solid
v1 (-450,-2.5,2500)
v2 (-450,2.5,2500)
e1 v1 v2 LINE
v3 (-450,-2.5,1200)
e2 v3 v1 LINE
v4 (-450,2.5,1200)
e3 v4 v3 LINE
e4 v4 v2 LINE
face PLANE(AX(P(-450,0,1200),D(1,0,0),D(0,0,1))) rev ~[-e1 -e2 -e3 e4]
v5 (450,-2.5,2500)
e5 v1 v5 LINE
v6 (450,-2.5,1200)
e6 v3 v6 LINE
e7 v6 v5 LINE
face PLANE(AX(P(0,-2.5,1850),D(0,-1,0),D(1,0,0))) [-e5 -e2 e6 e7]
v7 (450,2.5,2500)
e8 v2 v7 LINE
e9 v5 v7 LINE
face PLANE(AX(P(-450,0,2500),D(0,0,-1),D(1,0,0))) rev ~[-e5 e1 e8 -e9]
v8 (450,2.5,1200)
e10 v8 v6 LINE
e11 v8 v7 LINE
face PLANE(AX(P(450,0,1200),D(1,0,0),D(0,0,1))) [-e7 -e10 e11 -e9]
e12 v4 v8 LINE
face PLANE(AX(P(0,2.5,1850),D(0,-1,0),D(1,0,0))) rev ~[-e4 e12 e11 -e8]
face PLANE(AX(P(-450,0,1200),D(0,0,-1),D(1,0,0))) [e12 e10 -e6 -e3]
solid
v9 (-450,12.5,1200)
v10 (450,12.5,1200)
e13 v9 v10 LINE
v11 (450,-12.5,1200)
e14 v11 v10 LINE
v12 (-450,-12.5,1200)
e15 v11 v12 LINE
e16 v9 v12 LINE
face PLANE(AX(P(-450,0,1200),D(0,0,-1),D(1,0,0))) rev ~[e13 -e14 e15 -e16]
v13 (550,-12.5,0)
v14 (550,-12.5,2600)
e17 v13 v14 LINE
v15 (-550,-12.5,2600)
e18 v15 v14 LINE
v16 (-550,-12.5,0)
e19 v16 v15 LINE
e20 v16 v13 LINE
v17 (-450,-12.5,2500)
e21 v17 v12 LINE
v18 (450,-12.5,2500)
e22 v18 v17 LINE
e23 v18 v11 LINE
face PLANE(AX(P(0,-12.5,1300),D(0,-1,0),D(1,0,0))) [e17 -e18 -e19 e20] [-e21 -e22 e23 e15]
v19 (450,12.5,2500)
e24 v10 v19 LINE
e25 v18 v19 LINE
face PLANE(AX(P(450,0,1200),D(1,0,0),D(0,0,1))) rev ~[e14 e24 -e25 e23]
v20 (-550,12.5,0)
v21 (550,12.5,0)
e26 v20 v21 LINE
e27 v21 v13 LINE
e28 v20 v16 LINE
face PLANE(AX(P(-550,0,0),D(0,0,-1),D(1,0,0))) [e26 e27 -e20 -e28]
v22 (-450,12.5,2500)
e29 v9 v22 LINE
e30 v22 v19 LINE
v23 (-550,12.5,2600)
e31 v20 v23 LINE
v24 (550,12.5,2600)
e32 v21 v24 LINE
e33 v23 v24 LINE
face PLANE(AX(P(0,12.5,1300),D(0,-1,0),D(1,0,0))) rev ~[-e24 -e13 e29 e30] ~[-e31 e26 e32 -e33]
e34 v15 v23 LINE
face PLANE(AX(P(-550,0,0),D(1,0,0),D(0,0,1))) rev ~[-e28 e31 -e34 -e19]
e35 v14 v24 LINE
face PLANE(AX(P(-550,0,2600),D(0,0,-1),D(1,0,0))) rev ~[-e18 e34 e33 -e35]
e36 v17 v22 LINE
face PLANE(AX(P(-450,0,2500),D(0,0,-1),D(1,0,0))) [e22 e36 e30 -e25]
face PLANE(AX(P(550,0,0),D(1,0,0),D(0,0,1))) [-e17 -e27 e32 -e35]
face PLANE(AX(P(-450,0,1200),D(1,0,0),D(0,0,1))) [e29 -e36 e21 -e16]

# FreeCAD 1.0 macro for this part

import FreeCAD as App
import Part
import Sketcher

V = App.Vector
Q = App.Units.Quantity

doc = App.newDocument("Part")
body = doc.addObject("PartDesign::Body", "Body")

# Sketch on XZ plane
sketch1 = doc.addObject("Sketcher::SketchObject", "Sketch")
body.addObject(sketch1)
sketch1.AttachmentSupport = (doc.XZ_Plane, [""])
sketch1.MapMode = "FlatFace"
sketch1.addGeometry(Part.LineSegment(V(-550, 2600, 0), V(-550, 0, 0)), False)
sketch1.addGeometry(Part.LineSegment(V(-550, 0, 0), V(550, 0, 0)), False)
sketch1.addGeometry(Part.LineSegment(V(550, 0, 0), V(550, 2600, 0)), False)
sketch1.addGeometry(Part.LineSegment(V(550, 2600, 0), V(-550, 2600, 0)), False)
sketch1.addConstraint(Sketcher.Constraint("Coincident", 0, 2, 1, 1))
sketch1.addConstraint(Sketcher.Constraint("Coincident", 1, 2, 2, 1))
sketch1.addConstraint(Sketcher.Constraint("Coincident", 2, 2, 3, 1))
sketch1.addConstraint(Sketcher.Constraint("Coincident", 3, 2, 0, 1))
sketch1.addConstraint(Sketcher.Constraint("Vertical", 0))
sketch1.addConstraint(Sketcher.Constraint("Horizontal", 1))
sketch1.addConstraint(Sketcher.Constraint("Vertical", 2))
sketch1.addConstraint(Sketcher.Constraint("Horizontal", 3))
sketch1.addConstraint(Sketcher.Constraint("Symmetric", 0, 2, 1, 2, -1, 1))
sketch1.addConstraint(Sketcher.Constraint("DistanceX", 1, 1, 1, 2, Q("1100 mm")))
sketch1.addConstraint(Sketcher.Constraint("DistanceY", 0, 2, 0, 1, Q("2600 mm")))
pad1 = doc.addObject("PartDesign::Pad", "Pad")
body.addObject(pad1)
pad1.Profile = sketch1
pad1.Length = 25
pad1.Midplane = True

# Sketch on XZ plane
sketch2 = doc.addObject("Sketcher::SketchObject", "Sketch001")
body.addObject(sketch2)
sketch2.AttachmentSupport = (doc.XZ_Plane, [""])
sketch2.MapMode = "FlatFace"
sketch2.addGeometry(Part.LineSegment(V(-450, 2500, 0), V(-450, 1200, 0)), False)
sketch2.addGeometry(Part.LineSegment(V(-450, 1200, 0), V(450, 1200, 0)), False)
sketch2.addGeometry(Part.LineSegment(V(450, 1200, 0), V(450, 2500, 0)), False)
sketch2.addGeometry(Part.LineSegment(V(450, 2500, 0), V(-450, 2500, 0)), False)
sketch2.addConstraint(Sketcher.Constraint("Coincident", 0, 2, 1, 1))
sketch2.addConstraint(Sketcher.Constraint("Coincident", 1, 2, 2, 1))
sketch2.addConstraint(Sketcher.Constraint("Coincident", 2, 2, 3, 1))
sketch2.addConstraint(Sketcher.Constraint("Coincident", 3, 2, 0, 1))
sketch2.addConstraint(Sketcher.Constraint("Vertical", 0))
sketch2.addConstraint(Sketcher.Constraint("Horizontal", 1))
sketch2.addConstraint(Sketcher.Constraint("Vertical", 2))
sketch2.addConstraint(Sketcher.Constraint("Horizontal", 3))
sketch2.addConstraint(Sketcher.Constraint("DistanceX", 1, 1, 1, 2, Q("900 mm")))
sketch2.addConstraint(Sketcher.Constraint("DistanceY", 0, 2, 0, 1, Q("1300 mm")))
sketch2.addConstraint(Sketcher.Constraint("DistanceX", 0, 2, -1, 1, Q("450 mm")))
sketch2.addConstraint(Sketcher.Constraint("DistanceY", -1, 1, 0, 2, Q("1200 mm")))
pocket1 = doc.addObject("PartDesign::Pocket", "Pocket")
body.addObject(pocket1)
pocket1.Profile = sketch2
pocket1.Type = "ThroughAll"
pocket1.Midplane = True
body2 = doc.addObject("PartDesign::Body", "Body001")

# Sketch on XZ plane
sketch3 = doc.addObject("Sketcher::SketchObject", "Sketch002")
body2.addObject(sketch3)
sketch3.AttachmentSupport = (doc.getObject("XZ_Plane001"), [""])
sketch3.MapMode = "FlatFace"
sketch3.addGeometry(Part.LineSegment(V(-450, 2500, 0), V(-450, 1200, 0)), False)
sketch3.addGeometry(Part.LineSegment(V(-450, 1200, 0), V(450, 1200, 0)), False)
sketch3.addGeometry(Part.LineSegment(V(450, 1200, 0), V(450, 2500, 0)), False)
sketch3.addGeometry(Part.LineSegment(V(450, 2500, 0), V(-450, 2500, 0)), False)
sketch3.addConstraint(Sketcher.Constraint("Coincident", 0, 2, 1, 1))
sketch3.addConstraint(Sketcher.Constraint("Coincident", 1, 2, 2, 1))
sketch3.addConstraint(Sketcher.Constraint("Coincident", 2, 2, 3, 1))
sketch3.addConstraint(Sketcher.Constraint("Coincident", 3, 2, 0, 1))
sketch3.addConstraint(Sketcher.Constraint("Vertical", 0))
sketch3.addConstraint(Sketcher.Constraint("Horizontal", 1))
sketch3.addConstraint(Sketcher.Constraint("Vertical", 2))
sketch3.addConstraint(Sketcher.Constraint("Horizontal", 3))
sketch3.addConstraint(Sketcher.Constraint("DistanceX", 1, 1, 1, 2, Q("900 mm")))
sketch3.addConstraint(Sketcher.Constraint("DistanceY", 0, 2, 0, 1, Q("1300 mm")))
sketch3.addConstraint(Sketcher.Constraint("DistanceX", 0, 2, -1, 1, Q("450 mm")))
sketch3.addConstraint(Sketcher.Constraint("DistanceY", -1, 1, 0, 2, Q("1200 mm")))
pad2 = doc.addObject("PartDesign::Pad", "Pad001")
body2.addObject(pad2)
pad2.Profile = sketch3
pad2.Length = 5
pad2.Midplane = True

doc.recompute()
